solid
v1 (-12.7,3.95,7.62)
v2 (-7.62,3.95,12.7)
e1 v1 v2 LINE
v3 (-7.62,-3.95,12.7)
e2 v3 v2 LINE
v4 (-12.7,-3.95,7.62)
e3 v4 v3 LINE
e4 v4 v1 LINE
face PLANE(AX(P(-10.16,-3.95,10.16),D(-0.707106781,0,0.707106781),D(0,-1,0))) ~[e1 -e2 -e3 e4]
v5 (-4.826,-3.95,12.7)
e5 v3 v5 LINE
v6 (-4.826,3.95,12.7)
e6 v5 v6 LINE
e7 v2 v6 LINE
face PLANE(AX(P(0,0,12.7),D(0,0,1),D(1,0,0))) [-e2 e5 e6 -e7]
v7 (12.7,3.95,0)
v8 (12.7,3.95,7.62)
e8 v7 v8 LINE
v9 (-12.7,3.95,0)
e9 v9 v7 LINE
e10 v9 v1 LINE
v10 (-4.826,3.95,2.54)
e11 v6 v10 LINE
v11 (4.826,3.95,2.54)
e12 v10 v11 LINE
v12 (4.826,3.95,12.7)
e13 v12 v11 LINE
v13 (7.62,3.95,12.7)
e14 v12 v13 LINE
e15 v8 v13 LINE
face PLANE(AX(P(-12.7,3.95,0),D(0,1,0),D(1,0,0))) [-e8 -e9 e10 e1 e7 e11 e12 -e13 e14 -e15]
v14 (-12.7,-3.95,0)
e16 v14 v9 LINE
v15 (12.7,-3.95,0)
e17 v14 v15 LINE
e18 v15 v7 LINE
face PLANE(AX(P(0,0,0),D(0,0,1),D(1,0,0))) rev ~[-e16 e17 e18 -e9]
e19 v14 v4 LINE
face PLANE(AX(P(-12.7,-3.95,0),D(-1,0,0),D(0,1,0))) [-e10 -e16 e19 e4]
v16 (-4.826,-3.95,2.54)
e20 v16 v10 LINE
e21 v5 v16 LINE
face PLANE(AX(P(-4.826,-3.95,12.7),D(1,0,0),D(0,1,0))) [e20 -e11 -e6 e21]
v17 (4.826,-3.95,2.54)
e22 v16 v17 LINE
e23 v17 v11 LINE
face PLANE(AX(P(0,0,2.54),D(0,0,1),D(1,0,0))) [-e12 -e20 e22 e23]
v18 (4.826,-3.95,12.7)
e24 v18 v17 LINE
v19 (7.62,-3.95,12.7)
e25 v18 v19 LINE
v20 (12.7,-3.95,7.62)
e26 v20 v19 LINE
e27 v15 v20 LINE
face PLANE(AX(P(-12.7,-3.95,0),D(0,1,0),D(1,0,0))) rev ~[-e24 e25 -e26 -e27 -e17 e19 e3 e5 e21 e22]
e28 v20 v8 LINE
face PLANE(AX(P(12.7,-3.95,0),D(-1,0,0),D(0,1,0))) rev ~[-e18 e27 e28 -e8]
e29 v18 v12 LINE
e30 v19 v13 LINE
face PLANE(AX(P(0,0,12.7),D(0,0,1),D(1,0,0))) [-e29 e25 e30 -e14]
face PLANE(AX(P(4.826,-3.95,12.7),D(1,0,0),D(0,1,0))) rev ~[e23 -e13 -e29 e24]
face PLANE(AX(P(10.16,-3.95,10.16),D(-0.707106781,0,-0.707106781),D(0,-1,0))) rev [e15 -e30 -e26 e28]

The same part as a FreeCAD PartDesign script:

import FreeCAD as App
import Part
import Sketcher
Q = App.Units.Quantity


def edges_at(feature, points):
    """Names of the edges that pass closest to the given points."""
    edges = feature.Shape.Edges
    near = lambda p: min(range(len(edges)), key=lambda i: edges[i].distToShape(Part.Vertex(*p))[0])
    return sorted({f"Edge{near(p) + 1}" for p in points})

doc = App.newDocument("Part")
body = doc.addObject("PartDesign::Body", "Body")

# Sketch on XY plane
sketch1 = doc.addObject("Sketcher::SketchObject", "Sketch")
body.addObject(sketch1)
sketch1.AttachmentSupport = (doc.XY_Plane, [""])
sketch1.MapMode = "FlatFace"
sketch1.addGeometry([
    Part.LineSegment(App.Vector(-13, 4, 0), App.Vector(-13, -4, 0)),
    Part.LineSegment(App.Vector(-13, -4, 0), App.Vector(13, -4, 0)),
    Part.LineSegment(App.Vector(13, -4, 0), App.Vector(13, 4, 0)),
    Part.LineSegment(App.Vector(13, 4, 0), App.Vector(-13, 4, 0)),
], False)
sketch1.addConstraint([
    Sketcher.Constraint("Coincident", 0, 2, 1, 1),
    Sketcher.Constraint("Coincident", 1, 2, 2, 1),
    Sketcher.Constraint("Coincident", 2, 2, 3, 1),
    Sketcher.Constraint("Coincident", 3, 2, 0, 1),
    Sketcher.Constraint("Vertical", 0),
    Sketcher.Constraint("Horizontal", 1),
    Sketcher.Constraint("Vertical", 2),
    Sketcher.Constraint("Horizontal", 3),
    Sketcher.Constraint("Symmetric", 0, 2, 2, 2, -1, 1),
    Sketcher.Constraint("DistanceX", 1, 1, 1, 2, Q("1 in")),
    Sketcher.Constraint("DistanceY", 0, 2, 0, 1, Q("7.9 mm")),
])
pad1 = doc.addObject("PartDesign::Pad", "Pad")
body.addObject(pad1)
pad1.Profile = sketch1
pad1.Length = Q("0.5 in")
doc.recompute()

chamfer = doc.addObject("PartDesign::Chamfer", "Chamfer")
body.addObject(chamfer)
chamfer.Base = (pad1, edges_at(pad1, [(12.7, 0, 12.7), (-12.7, 0, 12.7)]))
chamfer.Size = Q("0.2 in")

# Sketch on XY plane
sketch2 = doc.addObject("Sketcher::SketchObject", "Sketch001")
body.addObject(sketch2)
sketch2.AttachmentSupport = (doc.XY_Plane, [""])
sketch2.MapMode = "FlatFace"
sketch2.AttachmentOffset = App.Placement(App.Vector(0, 0, 0.5 * 25.4), App.Rotation())
sketch2.addGeometry([
    Part.LineSegment(App.Vector(-5, 4, 0), App.Vector(-5, -4, 0)),
    Part.LineSegment(App.Vector(-5, -4, 0), App.Vector(5, -4, 0)),
    Part.LineSegment(App.Vector(5, -4, 0), App.Vector(5, 4, 0)),
    Part.LineSegment(App.Vector(5, 4, 0), App.Vector(-5, 4, 0)),
], False)
sketch2.addConstraint([
    Sketcher.Constraint("Coincident", 0, 2, 1, 1),
    Sketcher.Constraint("Coincident", 1, 2, 2, 1),
    Sketcher.Constraint("Coincident", 2, 2, 3, 1),
    Sketcher.Constraint("Coincident", 3, 2, 0, 1),
    Sketcher.Constraint("Vertical", 0),
    Sketcher.Constraint("Horizontal", 1),
    Sketcher.Constraint("Vertical", 2),
    Sketcher.Constraint("Horizontal", 3),
    Sketcher.Constraint("Symmetric", 0, 2, 2, 2, -1, 1),
    Sketcher.Constraint("DistanceX", 1, 1, 1, 2, Q("0.38 in")),
    Sketcher.Constraint("DistanceY", 0, 2, 0, 1, Q("7.9 mm")),
])
pocket1 = doc.addObject("PartDesign::Pocket", "Pocket")
body.addObject(pocket1)
pocket1.Profile = sketch2
pocket1.Length = Q("0.4 in")

doc.recompute()
